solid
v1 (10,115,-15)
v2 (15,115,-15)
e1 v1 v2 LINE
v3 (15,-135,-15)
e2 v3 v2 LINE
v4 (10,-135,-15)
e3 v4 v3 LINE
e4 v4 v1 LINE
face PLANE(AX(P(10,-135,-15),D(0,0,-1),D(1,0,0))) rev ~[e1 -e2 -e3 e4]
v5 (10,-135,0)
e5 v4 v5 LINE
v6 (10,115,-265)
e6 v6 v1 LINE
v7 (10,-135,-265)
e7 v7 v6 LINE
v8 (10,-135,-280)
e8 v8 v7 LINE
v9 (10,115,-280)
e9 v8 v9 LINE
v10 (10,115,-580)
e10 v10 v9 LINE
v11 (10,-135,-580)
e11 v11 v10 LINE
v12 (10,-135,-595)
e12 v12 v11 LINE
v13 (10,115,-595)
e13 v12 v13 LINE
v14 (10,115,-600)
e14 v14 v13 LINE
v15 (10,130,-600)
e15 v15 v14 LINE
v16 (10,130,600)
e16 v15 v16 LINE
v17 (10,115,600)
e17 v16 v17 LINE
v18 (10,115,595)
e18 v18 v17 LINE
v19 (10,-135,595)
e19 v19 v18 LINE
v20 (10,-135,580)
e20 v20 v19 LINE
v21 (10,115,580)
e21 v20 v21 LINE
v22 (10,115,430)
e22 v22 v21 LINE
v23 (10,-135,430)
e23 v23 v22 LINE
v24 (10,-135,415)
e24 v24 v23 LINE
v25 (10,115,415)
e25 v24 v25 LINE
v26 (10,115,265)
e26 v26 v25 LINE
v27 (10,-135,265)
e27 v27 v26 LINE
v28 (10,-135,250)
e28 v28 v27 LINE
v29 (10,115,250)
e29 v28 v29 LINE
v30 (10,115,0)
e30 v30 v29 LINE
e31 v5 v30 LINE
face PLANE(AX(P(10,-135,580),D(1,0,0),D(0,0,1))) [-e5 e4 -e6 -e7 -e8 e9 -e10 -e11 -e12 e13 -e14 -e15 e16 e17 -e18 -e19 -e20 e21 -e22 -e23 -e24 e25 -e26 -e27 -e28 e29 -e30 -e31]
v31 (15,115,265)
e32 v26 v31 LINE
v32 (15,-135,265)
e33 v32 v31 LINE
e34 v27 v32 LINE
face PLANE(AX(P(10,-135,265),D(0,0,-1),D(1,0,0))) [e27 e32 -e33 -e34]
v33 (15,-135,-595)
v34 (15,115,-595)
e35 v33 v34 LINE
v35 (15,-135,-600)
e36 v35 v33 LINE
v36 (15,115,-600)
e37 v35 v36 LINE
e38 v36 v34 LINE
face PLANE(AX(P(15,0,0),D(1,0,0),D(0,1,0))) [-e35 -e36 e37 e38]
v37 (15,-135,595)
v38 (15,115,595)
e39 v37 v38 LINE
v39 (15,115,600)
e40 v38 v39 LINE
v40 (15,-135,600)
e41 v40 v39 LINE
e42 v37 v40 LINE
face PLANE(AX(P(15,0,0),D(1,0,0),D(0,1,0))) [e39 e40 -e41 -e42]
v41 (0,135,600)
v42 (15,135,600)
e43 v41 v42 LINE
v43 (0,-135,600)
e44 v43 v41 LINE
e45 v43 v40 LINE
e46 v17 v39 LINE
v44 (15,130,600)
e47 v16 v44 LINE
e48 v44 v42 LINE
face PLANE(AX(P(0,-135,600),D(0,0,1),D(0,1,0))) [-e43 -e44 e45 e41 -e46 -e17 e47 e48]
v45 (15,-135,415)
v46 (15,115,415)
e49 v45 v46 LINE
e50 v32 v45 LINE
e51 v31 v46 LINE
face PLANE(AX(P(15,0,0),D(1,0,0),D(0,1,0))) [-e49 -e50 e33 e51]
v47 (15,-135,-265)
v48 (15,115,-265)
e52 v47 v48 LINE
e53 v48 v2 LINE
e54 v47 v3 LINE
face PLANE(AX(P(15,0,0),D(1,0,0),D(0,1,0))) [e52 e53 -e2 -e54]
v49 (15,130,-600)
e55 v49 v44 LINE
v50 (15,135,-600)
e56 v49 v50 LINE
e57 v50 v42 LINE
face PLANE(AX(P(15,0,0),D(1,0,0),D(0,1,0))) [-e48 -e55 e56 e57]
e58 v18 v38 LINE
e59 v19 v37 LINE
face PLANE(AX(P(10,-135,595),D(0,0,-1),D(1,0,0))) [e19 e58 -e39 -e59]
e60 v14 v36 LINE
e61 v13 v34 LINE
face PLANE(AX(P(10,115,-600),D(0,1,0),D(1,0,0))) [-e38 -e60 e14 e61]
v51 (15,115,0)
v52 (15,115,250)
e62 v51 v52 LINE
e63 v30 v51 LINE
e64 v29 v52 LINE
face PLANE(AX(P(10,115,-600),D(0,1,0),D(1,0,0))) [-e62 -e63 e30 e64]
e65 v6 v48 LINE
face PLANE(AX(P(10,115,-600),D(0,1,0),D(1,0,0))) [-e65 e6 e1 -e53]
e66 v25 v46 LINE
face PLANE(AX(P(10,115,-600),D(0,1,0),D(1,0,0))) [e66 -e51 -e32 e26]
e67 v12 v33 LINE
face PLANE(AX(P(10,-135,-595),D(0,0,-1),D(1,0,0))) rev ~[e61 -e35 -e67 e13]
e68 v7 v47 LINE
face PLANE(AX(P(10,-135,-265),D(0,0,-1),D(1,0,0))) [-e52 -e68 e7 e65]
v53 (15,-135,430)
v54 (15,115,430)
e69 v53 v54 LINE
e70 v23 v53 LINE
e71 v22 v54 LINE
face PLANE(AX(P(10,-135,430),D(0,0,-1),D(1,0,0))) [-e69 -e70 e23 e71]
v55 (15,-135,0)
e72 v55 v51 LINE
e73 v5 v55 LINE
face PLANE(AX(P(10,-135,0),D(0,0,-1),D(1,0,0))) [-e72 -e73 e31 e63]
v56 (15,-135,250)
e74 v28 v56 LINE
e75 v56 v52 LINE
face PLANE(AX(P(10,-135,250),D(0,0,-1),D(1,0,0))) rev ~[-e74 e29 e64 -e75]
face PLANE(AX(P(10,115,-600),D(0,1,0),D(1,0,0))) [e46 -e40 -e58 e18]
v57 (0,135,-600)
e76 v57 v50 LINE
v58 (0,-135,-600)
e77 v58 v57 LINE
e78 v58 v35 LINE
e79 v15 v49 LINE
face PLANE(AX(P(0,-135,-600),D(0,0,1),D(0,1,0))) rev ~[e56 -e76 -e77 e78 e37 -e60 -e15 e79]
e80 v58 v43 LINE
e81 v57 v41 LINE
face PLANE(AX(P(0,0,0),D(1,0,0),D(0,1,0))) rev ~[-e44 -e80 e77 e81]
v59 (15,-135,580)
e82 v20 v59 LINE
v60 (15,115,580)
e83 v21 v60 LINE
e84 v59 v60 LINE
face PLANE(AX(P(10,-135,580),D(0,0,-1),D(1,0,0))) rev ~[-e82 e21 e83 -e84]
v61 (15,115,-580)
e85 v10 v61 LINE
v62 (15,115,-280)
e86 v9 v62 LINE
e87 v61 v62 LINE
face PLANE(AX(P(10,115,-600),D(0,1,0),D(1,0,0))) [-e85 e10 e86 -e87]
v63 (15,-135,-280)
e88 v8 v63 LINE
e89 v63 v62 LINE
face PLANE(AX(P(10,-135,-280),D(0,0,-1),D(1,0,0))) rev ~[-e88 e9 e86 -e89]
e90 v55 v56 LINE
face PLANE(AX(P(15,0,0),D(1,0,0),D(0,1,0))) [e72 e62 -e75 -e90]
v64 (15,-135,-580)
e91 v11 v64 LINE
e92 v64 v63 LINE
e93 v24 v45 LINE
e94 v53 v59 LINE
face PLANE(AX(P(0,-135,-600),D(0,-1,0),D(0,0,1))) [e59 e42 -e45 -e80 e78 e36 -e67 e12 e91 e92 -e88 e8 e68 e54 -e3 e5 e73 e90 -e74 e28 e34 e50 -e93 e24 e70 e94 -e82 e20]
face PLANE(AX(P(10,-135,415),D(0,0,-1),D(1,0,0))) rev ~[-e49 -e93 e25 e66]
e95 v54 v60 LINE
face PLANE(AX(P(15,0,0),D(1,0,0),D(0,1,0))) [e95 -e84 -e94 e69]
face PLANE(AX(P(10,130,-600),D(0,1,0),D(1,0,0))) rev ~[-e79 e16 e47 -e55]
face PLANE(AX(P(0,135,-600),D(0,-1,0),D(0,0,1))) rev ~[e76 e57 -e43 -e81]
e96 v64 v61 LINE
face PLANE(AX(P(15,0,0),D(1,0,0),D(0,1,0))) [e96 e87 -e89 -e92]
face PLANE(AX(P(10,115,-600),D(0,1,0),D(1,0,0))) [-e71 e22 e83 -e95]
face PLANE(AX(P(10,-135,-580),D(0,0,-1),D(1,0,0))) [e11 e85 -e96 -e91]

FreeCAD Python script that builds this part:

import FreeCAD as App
import Part
import Sketcher

V = App.Vector
Q = App.Units.Quantity


def add_polygon(sketch, points):
    """Adds a closed chain of lines whose ends are joined by coincident constraints."""
    first, n = sketch.GeometryCount, len(points)
    for a, b in zip(points, points[1:] + points[:1]):
        sketch.addGeometry(Part.LineSegment(App.Vector(*a, 0), App.Vector(*b, 0)), False)
    for i in range(n):
        sketch.addConstraint(Sketcher.Constraint("Coincident", first + i, 2, first + (i + 1) % n, 1))

doc = App.newDocument("Part")
body = doc.addObject("PartDesign::Body", "Body")

sketch1 = body.newObject("Sketcher::SketchObject", "Sketch")
sketch1.AttachmentSupport = (doc.getObject("YZ_Plane"), [""])
sketch1.MapMode = "FlatFace"
add_polygon(sketch1, [(-135, 600), (-135, -600), (135, -600), (135, 600)])
sketch1.addConstraint([
    Sketcher.Constraint("Vertical", 0),
    Sketcher.Constraint("Horizontal", 1),
    Sketcher.Constraint("Vertical", 2),
    Sketcher.Constraint("Horizontal", 3),
    Sketcher.Constraint("Symmetric", 0, 2, 2, 2, -1, 1),
    Sketcher.Constraint("DistanceX", 1, 1, 1, 2, Q("270 mm")),
    Sketcher.Constraint("DistanceY", 0, 2, 0, 1, Q("1200 mm")),
])
pad1 = body.newObject("PartDesign::Pad", "Pad")
pad1.Profile = sketch1
pad1.Length = 15

sketch2 = body.newObject("Sketcher::SketchObject", "Sketch001")
sketch2.AttachmentSupport = (doc.getObject("XY_Plane"), [""])
sketch2.MapMode = "FlatFace"
sketch2.AttachmentOffset = App.Placement(V(0, 0, -600), App.Rotation())
add_polygon(sketch2, [(10, 115), (10, 130), (15, 130), (15, 115)])
sketch2.addConstraint([
    Sketcher.Constraint("Vertical", 0),
    Sketcher.Constraint("Horizontal", 1),
    Sketcher.Constraint("Vertical", 2),
    Sketcher.Constraint("Horizontal", 3),
    Sketcher.Constraint("DistanceX", 1, 1, 1, 2, Q("5 mm")),
    Sketcher.Constraint("DistanceY", 0, 1, 0, 2, Q("15 mm")),
    Sketcher.Constraint("DistanceX", -1, 1, 0, 2, Q("10 mm")),
    Sketcher.Constraint("DistanceY", -1, 1, 0, 2, Q("130 mm")),
])
pocket1 = body.newObject("PartDesign::Pocket", "Pocket")
pocket1.Profile = sketch2
pocket1.Type = "ThroughAll"
pocket1.Reversed = True

sketch3 = body.newObject("Sketcher::SketchObject", "Sketch002")
sketch3.AttachmentSupport = (doc.getObject("XZ_Plane"), [""])
sketch3.MapMode = "FlatFace"
sketch3.AttachmentOffset = App.Placement(V(0, 0, 135), App.Rotation())
add_polygon(sketch3, [(10, -580), (10, -595), (15, -595), (15, -580)])
add_polygon(sketch3, [(10, -265), (10, -280), (15, -280), (15, -265)])
add_polygon(sketch3, [(10, 0), (10, -15), (15, -15), (15, 0)])
add_polygon(sketch3, [(10, 265), (10, 250), (15, 250), (15, 265)])
add_polygon(sketch3, [(10, 430), (10, 415), (15, 415), (15, 430)])
add_polygon(sketch3, [(10, 595), (10, 580), (15, 580), (15, 595)])
sketch3.addConstraint([
    Sketcher.Constraint("Vertical", 0),
    Sketcher.Constraint("Horizontal", 1),
    Sketcher.Constraint("Vertical", 2),
    Sketcher.Constraint("Horizontal", 3),
    Sketcher.Constraint("Vertical", 4),
    Sketcher.Constraint("Horizontal", 5),
    Sketcher.Constraint("Vertical", 6),
    Sketcher.Constraint("Horizontal", 7),
    Sketcher.Constraint("Vertical", 8),
    Sketcher.Constraint("Horizontal", 9),
    Sketcher.Constraint("Vertical", 10),
    Sketcher.Constraint("Horizontal", 11),
    Sketcher.Constraint("Vertical", 12),
    Sketcher.Constraint("Horizontal", 13),
    Sketcher.Constraint("Vertical", 14),
    Sketcher.Constraint("Horizontal", 15),
    Sketcher.Constraint("Vertical", 16),
    Sketcher.Constraint("Horizontal", 17),
    Sketcher.Constraint("Vertical", 18),
    Sketcher.Constraint("Horizontal", 19),
    Sketcher.Constraint("Vertical", 20),
    Sketcher.Constraint("Horizontal", 21),
    Sketcher.Constraint("Vertical", 22),
    Sketcher.Constraint("Horizontal", 23),
    Sketcher.Constraint("Symmetric", 6, 2, 14, 2, -1),
    Sketcher.Constraint("Symmetric", 3, 2, 20, 2, -1),
    Sketcher.Constraint("Symmetric", 1, 2, 22, 2, -1),
    Sketcher.Constraint("PointOnObject", 10, 2, -1),
    Sketcher.Constraint("Vertical", 3, 2, 4, 2),
    Sketcher.Constraint("Vertical", 2, 2, 5, 2),
    Sketcher.Constraint("Vertical", 7, 2, 8, 2),
    Sketcher.Constraint("Vertical", 6, 2, 9, 2),
    Sketcher.Constraint("Vertical", 11, 2, 12, 2),
    Sketcher.Constraint("Vertical", 15, 2, 16, 2),
    Sketcher.Constraint("Vertical", 14, 2, 17, 2),
    Sketcher.Constraint("Equal", 2, 4),
    Sketcher.Constraint("Equal", 6, 8),
    Sketcher.Constraint("Equal", 10, 12),
    Sketcher.Constraint("Equal", 14, 16),
    Sketcher.Constraint("DistanceX", 1, 1, 1, 2, Q("5 mm")),
    Sketcher.Constraint("DistanceY", 0, 2, 0, 1, Q("15 mm")),
    Sketcher.Constraint("DistanceX", -1, 1, 0, 2, Q("10 mm")),
    Sketcher.Constraint("DistanceY", 0, 2, -1, 1, Q("595 mm")),
    Sketcher.Constraint("DistanceY", 4, 2, -1, 1, Q("280 mm")),
    Sketcher.Constraint("DistanceY", -1, 1, 16, 2, Q("415 mm")),
])
pocket2 = body.newObject("PartDesign::Pocket", "Pocket001")
pocket2.Profile = sketch3
pocket2.Length = 250

doc.recompute()
